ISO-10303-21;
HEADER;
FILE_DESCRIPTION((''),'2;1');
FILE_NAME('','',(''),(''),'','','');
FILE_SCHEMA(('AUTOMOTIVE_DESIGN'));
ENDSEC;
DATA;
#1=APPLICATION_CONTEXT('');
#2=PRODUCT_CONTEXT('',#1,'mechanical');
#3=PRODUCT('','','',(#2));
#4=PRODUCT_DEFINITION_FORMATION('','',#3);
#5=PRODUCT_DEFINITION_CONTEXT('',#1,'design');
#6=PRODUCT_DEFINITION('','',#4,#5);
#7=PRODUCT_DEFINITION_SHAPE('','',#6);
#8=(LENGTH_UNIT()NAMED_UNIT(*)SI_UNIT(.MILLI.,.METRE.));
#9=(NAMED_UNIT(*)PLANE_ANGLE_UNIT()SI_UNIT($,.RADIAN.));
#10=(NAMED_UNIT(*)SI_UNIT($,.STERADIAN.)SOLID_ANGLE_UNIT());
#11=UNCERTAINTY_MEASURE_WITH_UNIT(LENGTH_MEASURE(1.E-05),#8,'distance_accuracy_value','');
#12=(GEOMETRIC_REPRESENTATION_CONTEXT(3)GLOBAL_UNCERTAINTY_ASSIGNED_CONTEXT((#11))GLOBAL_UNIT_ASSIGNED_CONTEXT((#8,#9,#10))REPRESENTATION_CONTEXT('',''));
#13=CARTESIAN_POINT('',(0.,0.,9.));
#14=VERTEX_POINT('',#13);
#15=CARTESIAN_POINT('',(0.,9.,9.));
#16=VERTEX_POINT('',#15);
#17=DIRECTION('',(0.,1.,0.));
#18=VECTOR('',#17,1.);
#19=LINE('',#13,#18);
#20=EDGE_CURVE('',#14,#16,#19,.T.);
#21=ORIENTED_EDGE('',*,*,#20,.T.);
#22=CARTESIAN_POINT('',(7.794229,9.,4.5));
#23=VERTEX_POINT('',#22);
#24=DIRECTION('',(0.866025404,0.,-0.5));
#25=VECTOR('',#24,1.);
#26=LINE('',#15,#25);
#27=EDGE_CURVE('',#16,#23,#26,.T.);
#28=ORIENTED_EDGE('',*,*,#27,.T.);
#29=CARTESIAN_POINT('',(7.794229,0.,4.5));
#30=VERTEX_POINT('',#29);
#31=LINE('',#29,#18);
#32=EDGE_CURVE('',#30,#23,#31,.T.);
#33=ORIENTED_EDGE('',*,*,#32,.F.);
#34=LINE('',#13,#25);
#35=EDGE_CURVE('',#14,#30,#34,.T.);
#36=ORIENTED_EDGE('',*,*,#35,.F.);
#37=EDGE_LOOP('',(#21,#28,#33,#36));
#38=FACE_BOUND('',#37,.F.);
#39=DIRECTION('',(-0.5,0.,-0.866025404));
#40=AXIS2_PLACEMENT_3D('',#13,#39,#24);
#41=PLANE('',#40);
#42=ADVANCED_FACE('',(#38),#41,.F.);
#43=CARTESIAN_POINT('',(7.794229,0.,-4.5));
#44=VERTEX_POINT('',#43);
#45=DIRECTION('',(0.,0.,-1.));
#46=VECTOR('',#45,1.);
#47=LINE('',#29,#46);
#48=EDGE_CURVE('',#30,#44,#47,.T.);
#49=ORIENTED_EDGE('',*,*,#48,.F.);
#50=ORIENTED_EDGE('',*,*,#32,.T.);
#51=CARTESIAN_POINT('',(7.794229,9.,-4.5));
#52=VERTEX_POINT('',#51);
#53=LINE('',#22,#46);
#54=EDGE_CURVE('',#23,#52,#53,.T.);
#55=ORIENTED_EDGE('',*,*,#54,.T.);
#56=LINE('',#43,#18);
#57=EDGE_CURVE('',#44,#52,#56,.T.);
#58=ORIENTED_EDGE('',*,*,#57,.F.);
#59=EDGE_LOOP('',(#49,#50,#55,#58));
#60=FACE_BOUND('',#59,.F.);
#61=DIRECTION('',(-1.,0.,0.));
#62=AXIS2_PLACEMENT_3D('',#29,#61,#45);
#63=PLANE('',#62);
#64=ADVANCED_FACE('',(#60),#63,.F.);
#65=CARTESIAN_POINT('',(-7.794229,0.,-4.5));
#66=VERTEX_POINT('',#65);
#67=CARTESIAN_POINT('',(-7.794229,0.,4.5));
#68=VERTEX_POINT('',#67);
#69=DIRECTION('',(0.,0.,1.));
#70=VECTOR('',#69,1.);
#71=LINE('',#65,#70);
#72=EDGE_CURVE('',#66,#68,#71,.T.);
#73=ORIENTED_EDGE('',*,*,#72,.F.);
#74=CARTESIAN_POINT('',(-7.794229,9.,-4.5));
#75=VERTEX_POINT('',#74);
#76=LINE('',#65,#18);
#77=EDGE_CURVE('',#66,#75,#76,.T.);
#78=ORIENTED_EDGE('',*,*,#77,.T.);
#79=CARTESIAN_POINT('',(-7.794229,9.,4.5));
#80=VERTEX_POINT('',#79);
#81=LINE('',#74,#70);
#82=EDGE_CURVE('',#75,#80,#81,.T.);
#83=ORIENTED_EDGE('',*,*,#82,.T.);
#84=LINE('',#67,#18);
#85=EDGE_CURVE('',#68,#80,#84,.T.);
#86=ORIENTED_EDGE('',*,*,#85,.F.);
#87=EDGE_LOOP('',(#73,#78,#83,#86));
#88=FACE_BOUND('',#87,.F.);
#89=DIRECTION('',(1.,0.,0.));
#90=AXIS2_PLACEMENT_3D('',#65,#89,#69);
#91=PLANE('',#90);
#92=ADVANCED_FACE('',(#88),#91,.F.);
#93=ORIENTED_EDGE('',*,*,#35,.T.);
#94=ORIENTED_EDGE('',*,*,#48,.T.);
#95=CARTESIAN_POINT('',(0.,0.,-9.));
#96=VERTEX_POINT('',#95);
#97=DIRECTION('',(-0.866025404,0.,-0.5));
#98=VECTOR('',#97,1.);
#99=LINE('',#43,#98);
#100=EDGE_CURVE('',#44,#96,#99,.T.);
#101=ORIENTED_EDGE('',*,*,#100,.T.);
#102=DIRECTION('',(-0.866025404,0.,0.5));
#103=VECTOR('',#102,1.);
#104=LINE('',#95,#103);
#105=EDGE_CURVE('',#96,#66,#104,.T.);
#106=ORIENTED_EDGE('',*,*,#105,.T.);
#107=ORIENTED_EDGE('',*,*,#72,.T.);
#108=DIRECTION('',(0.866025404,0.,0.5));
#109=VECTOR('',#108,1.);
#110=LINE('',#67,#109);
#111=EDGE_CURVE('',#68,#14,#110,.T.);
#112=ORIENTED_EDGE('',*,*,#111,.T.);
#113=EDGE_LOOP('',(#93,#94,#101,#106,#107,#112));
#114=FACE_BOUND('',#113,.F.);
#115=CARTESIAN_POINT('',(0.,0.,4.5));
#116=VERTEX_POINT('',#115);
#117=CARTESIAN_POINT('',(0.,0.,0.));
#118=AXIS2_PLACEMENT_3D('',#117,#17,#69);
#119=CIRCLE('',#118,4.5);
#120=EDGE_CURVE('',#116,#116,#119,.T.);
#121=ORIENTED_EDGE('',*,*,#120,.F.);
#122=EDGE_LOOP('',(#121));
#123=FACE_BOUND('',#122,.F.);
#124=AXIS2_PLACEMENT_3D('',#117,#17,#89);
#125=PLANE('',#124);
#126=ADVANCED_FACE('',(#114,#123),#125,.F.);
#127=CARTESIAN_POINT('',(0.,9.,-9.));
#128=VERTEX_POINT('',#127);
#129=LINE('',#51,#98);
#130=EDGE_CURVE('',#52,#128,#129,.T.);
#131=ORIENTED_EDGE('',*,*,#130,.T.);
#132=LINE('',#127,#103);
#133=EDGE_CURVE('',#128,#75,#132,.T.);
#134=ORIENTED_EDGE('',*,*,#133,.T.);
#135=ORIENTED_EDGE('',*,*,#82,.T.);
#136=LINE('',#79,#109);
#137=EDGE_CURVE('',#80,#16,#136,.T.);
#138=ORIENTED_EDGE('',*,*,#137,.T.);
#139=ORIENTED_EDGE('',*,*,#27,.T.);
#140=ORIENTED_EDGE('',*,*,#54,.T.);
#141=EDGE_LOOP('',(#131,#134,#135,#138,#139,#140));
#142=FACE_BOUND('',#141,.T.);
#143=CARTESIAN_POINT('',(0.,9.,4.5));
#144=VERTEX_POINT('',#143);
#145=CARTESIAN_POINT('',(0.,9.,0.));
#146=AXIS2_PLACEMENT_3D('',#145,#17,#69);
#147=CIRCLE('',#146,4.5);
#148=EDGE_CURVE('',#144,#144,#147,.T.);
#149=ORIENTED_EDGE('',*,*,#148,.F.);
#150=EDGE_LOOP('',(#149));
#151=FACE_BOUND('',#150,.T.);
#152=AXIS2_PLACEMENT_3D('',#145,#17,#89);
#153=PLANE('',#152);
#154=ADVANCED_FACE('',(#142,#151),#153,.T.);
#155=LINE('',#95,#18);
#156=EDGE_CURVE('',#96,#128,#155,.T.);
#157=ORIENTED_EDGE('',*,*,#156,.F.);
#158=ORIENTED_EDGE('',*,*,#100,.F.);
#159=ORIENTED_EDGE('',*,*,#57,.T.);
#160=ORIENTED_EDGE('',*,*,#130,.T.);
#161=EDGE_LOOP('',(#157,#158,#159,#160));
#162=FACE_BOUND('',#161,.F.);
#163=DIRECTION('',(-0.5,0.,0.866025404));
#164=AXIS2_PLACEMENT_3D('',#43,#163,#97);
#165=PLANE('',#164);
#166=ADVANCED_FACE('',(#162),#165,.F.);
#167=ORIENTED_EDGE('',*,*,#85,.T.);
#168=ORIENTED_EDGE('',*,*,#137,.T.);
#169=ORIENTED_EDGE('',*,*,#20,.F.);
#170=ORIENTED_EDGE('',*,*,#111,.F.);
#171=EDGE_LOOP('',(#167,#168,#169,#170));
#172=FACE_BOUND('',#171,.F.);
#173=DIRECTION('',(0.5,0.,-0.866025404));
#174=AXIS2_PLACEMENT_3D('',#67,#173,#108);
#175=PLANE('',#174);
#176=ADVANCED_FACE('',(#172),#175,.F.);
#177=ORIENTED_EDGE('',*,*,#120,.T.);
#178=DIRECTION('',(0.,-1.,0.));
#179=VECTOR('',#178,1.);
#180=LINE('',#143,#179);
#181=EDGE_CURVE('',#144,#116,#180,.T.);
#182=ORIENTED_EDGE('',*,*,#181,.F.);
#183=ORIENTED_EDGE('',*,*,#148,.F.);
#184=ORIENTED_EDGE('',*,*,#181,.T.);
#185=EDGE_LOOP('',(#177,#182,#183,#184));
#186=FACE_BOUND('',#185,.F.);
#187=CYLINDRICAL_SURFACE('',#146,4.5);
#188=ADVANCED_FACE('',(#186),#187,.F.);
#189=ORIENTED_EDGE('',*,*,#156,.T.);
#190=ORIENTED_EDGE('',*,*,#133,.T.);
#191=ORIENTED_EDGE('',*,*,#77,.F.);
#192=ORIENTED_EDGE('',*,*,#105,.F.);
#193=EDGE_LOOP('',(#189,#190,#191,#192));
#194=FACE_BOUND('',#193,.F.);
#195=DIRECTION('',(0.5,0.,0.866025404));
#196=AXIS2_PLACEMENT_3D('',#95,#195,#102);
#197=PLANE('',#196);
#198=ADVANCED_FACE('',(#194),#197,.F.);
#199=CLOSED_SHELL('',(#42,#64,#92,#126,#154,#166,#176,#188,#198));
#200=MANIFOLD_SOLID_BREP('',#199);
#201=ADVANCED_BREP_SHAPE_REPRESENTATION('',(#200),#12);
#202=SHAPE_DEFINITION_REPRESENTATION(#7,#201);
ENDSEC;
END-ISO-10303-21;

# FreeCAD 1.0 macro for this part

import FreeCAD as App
import Part
import Sketcher

V = App.Vector
Q = App.Units.Quantity

doc = App.newDocument("Part")
params = doc.addObject("Spreadsheet::Sheet", "Params")
for row, (alias, value) in enumerate([
    ("sketch1_height", "9 mm"),
    ("sketch1_length", "9 mm"),
    ("pad1_length", "9 mm"),
    ("sketch2_diameter", "9 mm"),
    ("pocket1_length", "9 mm"),
], start=1):
    params.set(f"A{row}", alias)
    params.set(f"B{row}", "=" + value)
    params.setAlias(f"B{row}", alias)

body = doc.addObject("PartDesign::Body", "Body")

sketch1 = body.newObject("Sketcher::SketchObject", "Sketch")
sketch1.AttachmentSupport = (doc.getObject("XZ_Plane"), [""])
sketch1.MapMode = "FlatFace"
sketch1.addGeometry([
    Part.LineSegment(V(0, -9, 0), V(-8, -4, 0)),
    Part.LineSegment(V(-8, -4, 0), V(-8, 4, 0)),
    Part.LineSegment(V(-8, 4, 0), V(0, 9, 0)),
    Part.LineSegment(V(0, 9, 0), V(8, 4, 0)),
    Part.LineSegment(V(8, 4, 0), V(8, -4, 0)),
    Part.LineSegment(V(8, -4, 0), V(0, -9, 0)),
], False)
sketch1.addConstraint([
    Sketcher.Constraint("Coincident", 0, 2, 1, 1),
    Sketcher.Constraint("Coincident", 1, 2, 2, 1),
    Sketcher.Constraint("Coincident", 2, 2, 3, 1),
    Sketcher.Constraint("Coincident", 3, 2, 4, 1),
    Sketcher.Constraint("Coincident", 4, 2, 5, 1),
    Sketcher.Constraint("Coincident", 5, 2, 0, 1),
    Sketcher.Constraint("Vertical", 1),
    Sketcher.Constraint("Vertical", 4),
    Sketcher.Constraint("Symmetric", 0, 2, 3, 2, -1, 1),
    Sketcher.Constraint("Symmetric", 2, 2, 5, 2, -1, 1),
    Sketcher.Constraint("PointOnObject", 2, 2, -2),
    Sketcher.Constraint("Parallel", 2, 5),
    Sketcher.Constraint("Horizontal", 1, 2, 3, 2),
    Sketcher.Constraint("DistanceY", 1, 1, 1, 2, Q("9 mm")),
    Sketcher.Constraint("Angle", 0, Q("150 deg")),
    Sketcher.Constraint("Distance", 0, Q("9 mm")),
])
sketch1.setExpression("Constraints[13]", "Params.sketch1_height")
sketch1.setExpression("Constraints[15]", "Params.sketch1_length")
pad1 = body.newObject("PartDesign::Pad", "Pad")
pad1.Profile = sketch1
pad1.setExpression("Length", "Params.pad1_length")
pad1.Reversed = True

sketch2 = body.newObject("Sketcher::SketchObject", "Sketch001")
sketch2.AttachmentSupport = (doc.getObject("XZ_Plane"), [""])
sketch2.MapMode = "FlatFace"
sketch2.AttachmentOffset = App.Placement(V(0, 0, -9), App.Rotation())
sketch2.addGeometry(Part.Circle(V(0, 0, 0), V(0, 0, 1), 4.5), False)
sketch2.addConstraint([
    Sketcher.Constraint("Coincident", 0, 3, -1, 1),
    Sketcher.Constraint("Diameter", 0, Q("9 mm")),
])
sketch2.setExpression("Constraints[1]", "Params.sketch2_diameter")
pocket1 = body.newObject("PartDesign::Pocket", "Pocket")
pocket1.Profile = sketch2
pocket1.setExpression("Length", "Params.pocket1_length")
pocket1.Reversed = True

doc.recompute()
